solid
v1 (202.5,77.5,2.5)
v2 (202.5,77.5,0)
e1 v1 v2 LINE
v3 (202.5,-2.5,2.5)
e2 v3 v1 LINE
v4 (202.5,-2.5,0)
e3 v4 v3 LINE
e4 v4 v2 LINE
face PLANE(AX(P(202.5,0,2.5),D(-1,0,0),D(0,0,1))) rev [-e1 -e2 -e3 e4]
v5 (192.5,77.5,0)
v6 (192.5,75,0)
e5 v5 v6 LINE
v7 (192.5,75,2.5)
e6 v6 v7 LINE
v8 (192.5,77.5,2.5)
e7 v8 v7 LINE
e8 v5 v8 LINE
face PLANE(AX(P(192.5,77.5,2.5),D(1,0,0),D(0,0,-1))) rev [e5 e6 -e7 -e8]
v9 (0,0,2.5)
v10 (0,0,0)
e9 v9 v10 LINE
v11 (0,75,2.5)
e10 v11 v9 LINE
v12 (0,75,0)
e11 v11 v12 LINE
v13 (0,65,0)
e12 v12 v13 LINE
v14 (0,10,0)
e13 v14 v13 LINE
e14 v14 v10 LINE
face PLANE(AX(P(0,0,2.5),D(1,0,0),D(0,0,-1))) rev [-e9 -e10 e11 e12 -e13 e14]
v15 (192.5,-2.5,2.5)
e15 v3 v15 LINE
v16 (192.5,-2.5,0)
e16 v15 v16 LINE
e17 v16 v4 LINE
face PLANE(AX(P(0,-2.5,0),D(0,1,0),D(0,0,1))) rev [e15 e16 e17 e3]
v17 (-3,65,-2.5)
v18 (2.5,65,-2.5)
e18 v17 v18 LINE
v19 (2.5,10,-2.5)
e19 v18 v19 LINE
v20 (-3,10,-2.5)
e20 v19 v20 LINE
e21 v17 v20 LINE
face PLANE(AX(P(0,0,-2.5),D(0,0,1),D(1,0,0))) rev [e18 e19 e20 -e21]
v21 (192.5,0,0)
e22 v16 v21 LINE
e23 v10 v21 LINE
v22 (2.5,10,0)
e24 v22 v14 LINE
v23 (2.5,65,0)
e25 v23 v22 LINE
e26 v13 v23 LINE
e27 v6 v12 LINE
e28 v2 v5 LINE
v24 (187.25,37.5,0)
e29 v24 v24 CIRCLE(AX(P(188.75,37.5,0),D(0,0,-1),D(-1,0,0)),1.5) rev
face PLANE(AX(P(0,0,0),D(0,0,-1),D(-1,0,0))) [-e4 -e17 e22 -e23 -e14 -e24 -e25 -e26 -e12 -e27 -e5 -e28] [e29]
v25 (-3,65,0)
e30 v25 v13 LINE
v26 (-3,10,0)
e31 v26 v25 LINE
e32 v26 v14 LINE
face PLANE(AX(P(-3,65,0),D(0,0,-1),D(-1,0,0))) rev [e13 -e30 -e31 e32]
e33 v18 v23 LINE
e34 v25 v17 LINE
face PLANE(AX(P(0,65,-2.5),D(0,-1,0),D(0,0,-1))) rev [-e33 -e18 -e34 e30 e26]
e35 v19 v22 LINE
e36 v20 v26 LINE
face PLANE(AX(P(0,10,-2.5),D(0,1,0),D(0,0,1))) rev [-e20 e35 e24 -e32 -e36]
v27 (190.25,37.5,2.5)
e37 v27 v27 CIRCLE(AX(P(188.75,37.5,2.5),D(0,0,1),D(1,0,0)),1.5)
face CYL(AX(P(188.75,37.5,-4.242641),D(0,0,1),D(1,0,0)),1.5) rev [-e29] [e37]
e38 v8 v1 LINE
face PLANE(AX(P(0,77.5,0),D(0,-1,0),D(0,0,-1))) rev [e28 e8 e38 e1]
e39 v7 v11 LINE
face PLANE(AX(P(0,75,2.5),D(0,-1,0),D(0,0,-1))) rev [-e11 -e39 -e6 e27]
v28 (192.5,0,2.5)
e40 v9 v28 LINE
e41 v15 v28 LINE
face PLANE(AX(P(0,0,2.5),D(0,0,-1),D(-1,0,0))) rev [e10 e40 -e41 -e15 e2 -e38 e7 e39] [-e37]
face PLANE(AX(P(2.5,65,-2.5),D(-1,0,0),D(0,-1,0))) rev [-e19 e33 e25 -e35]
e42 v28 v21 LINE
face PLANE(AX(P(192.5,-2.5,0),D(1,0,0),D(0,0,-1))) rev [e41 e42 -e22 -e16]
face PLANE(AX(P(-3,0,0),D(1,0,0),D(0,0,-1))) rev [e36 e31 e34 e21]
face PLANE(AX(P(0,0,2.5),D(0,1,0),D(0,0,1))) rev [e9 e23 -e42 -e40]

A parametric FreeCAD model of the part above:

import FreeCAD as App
import Part
import Sketcher
from FreeCAD import Vector
Q = App.Units.Quantity


def add_polygon(sketch, points):
    """Adds a closed chain of lines whose ends are joined by coincident constraints."""
    first, n = sketch.GeometryCount, len(points)
    for a, b in zip(points, points[1:] + points[:1]):
        sketch.addGeometry(Part.LineSegment(App.Vector(*a, 0), App.Vector(*b, 0)), False)
    for i in range(n):
        sketch.addConstraint(Sketcher.Constraint("Coincident", first + i, 2, first + (i + 1) % n, 1))

doc = App.newDocument("Part")
body = doc.addObject("PartDesign::Body", "Body")

sketch1 = body.newObject("Sketcher::SketchObject", "Sketch")
sketch1.AttachmentSupport = (doc.getObject("XY_Plane"), [""])
sketch1.MapMode = "FlatFace"
add_polygon(sketch1, [(0, 75), (0, 0), (202.5, 0), (202.5, 75)])
sketch1.addConstraint(Sketcher.Constraint("Vertical", 0))
sketch1.addConstraint(Sketcher.Constraint("Horizontal", 1))
sketch1.addConstraint(Sketcher.Constraint("Vertical", 2))
sketch1.addConstraint(Sketcher.Constraint("Horizontal", 3))
sketch1.addConstraint(Sketcher.Constraint("Coincident", 0, 2, -1, 1))
sketch1.addConstraint(Sketcher.Constraint("DistanceY", 0, 2, 0, 1, Q("75 mm")))
sketch1.addConstraint(Sketcher.Constraint("DistanceX", 1, 1, 1, 2, Q("202.5 mm")))
pad1 = body.newObject("PartDesign::Pad", "Pad")
pad1.Profile = sketch1
pad1.Length = 2.5

sketch2 = body.newObject("Sketcher::SketchObject", "Sketch001")
sketch2.AttachmentSupport = (doc.getObject("XZ_Plane"), [""])
sketch2.MapMode = "FlatFace"
sketch2.AttachmentOffset = App.Placement(Vector(0, 0, -75), App.Rotation())
add_polygon(sketch2, [(192.5, 0), (192.5, 2.5), (202.5, 2.5), (202.5, 0)])
sketch2.addConstraint(Sketcher.Constraint("Vertical", 0))
sketch2.addConstraint(Sketcher.Constraint("Horizontal", 1))
sketch2.addConstraint(Sketcher.Constraint("Vertical", 2))
sketch2.addConstraint(Sketcher.Constraint("Horizontal", 3))
sketch2.addConstraint(Sketcher.Constraint("PointOnObject", 2, 2, -1))
sketch2.addConstraint(Sketcher.Constraint("DistanceX", 1, 1, 1, 2, Q("10 mm")))
sketch2.addConstraint(Sketcher.Constraint("DistanceY", 0, 1, 0, 2, Q("2.5 mm")))
sketch2.addConstraint(Sketcher.Constraint("DistanceX", -1, 1, 0, 2, Q("192.5 mm")))
pad2 = body.newObject("PartDesign::Pad", "Pad001")
pad2.Profile = sketch2
pad2.Length = 2.5
pad2.Reversed = True

sketch3 = body.newObject("Sketcher::SketchObject", "Sketch002")
sketch3.AttachmentSupport = (doc.getObject("XZ_Plane"), [""])
sketch3.MapMode = "FlatFace"
add_polygon(sketch3, [(192.5, 2.5), (192.5, 0), (202.5, 0), (202.5, 2.5)])
sketch3.addConstraint(Sketcher.Constraint("Vertical", 0))
sketch3.addConstraint(Sketcher.Constraint("Horizontal", 1))
sketch3.addConstraint(Sketcher.Constraint("Vertical", 2))
sketch3.addConstraint(Sketcher.Constraint("Horizontal", 3))
sketch3.addConstraint(Sketcher.Constraint("PointOnObject", 0, 2, -1))
sketch3.addConstraint(Sketcher.Constraint("DistanceX", 1, 1, 1, 2, Q("10 mm")))
sketch3.addConstraint(Sketcher.Constraint("DistanceY", 0, 2, 0, 1, Q("2.5 mm")))
sketch3.addConstraint(Sketcher.Constraint("DistanceX", -1, 1, 0, 2, Q("192.5 mm")))
pad3 = body.newObject("PartDesign::Pad", "Pad002")
pad3.Profile = sketch3
pad3.Length = 2.5

sketch4 = body.newObject("Sketcher::SketchObject", "Sketch003")
sketch4.AttachmentSupport = (doc.getObject("XY_Plane"), [""])
sketch4.MapMode = "FlatFace"
sketch4.AttachmentOffset = App.Placement(Vector(0, 0, 2.5), App.Rotation())
sketch4.addGeometry(Part.Circle(Vector(188.75, 37.5, 0), Vector(0, 0, 1), 1.5), False)
sketch4.addConstraint(Sketcher.Constraint("Diameter", 0, Q("3 mm")))
sketch4.addConstraint(Sketcher.Constraint("DistanceY", -1, 1, 0, 3, Q("37.5 mm")))
sketch4.addConstraint(Sketcher.Constraint("DistanceX", -1, 1, 0, 3, Q("188.75 mm")))
pocket1 = body.newObject("PartDesign::Pocket", "Pocket")
pocket1.Profile = sketch4
pocket1.Length = 2.5

sketch5 = body.newObject("Sketcher::SketchObject", "Sketch004")
sketch5.AttachmentSupport = (doc.getObject("XY_Plane"), [""])
sketch5.MapMode = "FlatFace"
add_polygon(sketch5, [(2.5, 65), (2.5, 10), (0, 10), (0, 65)])
sketch5.addConstraint(Sketcher.Constraint("Vertical", 0))
sketch5.addConstraint(Sketcher.Constraint("Horizontal", 1))
sketch5.addConstraint(Sketcher.Constraint("Vertical", 2))
sketch5.addConstraint(Sketcher.Constraint("Horizontal", 3))
sketch5.addConstraint(Sketcher.Constraint("PointOnObject", 1, 2, -2))
sketch5.addConstraint(Sketcher.Constraint("DistanceY", 0, 2, 0, 1, Q("55 mm")))
sketch5.addConstraint(Sketcher.Constraint("DistanceX", 1, 2, 1, 1, Q("2.5 mm")))
sketch5.addConstraint(Sketcher.Constraint("DistanceY", -1, 1, 0, 2, Q("10 mm")))
pad4 = body.newObject("PartDesign::Pad", "Pad003")
pad4.Profile = sketch5
pad4.Length = 2.5
pad4.Reversed = True

sketch6 = body.newObject("Sketcher::SketchObject", "Sketch005")
sketch6.AttachmentSupport = (doc.getObject("YZ_Plane"), [""])
sketch6.MapMode = "FlatFace"
add_polygon(sketch6, [(65, -2.5), (10, -2.5), (10, 0), (65, 0)])
sketch6.addConstraint(Sketcher.Constraint("Horizontal", 0))
sketch6.addConstraint(Sketcher.Constraint("Vertical", 1))
sketch6.addConstraint(Sketcher.Constraint("Horizontal", 2))
sketch6.addConstraint(Sketcher.Constraint("Vertical", 3))
sketch6.addConstraint(Sketcher.Constraint("PointOnObject", 1, 2, -1))
sketch6.addConstraint(Sketcher.Constraint("DistanceX", 0, 2, 0, 1, Q("55 mm")))
sketch6.addConstraint(Sketcher.Constraint("DistanceY", 1, 1, 1, 2, Q("2.5 mm")))
sketch6.addConstraint(Sketcher.Constraint("DistanceX", -1, 1, 0, 2, Q("10 mm")))
pad5 = body.newObject("PartDesign::Pad", "Pad004")
pad5.Profile = sketch6
pad5.Length = 3
pad5.Reversed = True

doc.recompute()
